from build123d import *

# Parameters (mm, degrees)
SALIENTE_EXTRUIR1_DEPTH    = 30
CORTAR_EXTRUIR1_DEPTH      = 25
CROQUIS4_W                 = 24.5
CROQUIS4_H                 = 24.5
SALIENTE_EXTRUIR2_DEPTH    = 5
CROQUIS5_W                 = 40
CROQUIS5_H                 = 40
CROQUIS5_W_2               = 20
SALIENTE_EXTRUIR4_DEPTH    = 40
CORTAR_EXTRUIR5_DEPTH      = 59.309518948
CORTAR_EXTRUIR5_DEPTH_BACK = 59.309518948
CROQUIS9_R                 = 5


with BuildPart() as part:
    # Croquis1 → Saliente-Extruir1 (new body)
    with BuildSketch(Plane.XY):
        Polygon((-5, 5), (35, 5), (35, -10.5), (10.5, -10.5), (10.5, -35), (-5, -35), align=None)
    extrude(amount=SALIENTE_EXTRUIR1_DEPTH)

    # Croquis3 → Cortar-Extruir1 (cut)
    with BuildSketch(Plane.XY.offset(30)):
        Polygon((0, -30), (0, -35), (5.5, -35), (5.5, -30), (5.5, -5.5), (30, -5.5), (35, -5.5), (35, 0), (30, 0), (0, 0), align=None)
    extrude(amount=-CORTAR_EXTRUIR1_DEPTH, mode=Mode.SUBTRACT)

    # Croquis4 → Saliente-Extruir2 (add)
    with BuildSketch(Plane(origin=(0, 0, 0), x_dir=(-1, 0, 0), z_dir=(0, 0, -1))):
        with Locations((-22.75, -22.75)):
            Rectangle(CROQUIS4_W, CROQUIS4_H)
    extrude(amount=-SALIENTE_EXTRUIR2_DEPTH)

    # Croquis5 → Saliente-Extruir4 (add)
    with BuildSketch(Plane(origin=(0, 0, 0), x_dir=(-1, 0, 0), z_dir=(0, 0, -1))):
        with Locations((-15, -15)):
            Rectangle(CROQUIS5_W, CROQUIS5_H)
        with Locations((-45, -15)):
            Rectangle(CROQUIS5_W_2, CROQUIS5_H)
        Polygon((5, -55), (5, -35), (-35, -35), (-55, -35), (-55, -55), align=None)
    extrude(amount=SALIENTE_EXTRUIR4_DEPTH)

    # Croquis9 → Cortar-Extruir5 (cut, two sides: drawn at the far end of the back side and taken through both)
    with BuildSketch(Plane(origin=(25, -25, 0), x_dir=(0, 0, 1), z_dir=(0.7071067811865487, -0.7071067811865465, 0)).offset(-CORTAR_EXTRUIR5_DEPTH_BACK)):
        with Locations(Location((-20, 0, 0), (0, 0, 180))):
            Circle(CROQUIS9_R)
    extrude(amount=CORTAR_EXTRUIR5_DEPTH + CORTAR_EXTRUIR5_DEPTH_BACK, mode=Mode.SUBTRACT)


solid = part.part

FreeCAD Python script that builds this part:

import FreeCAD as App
import Part
import Sketcher
from FreeCAD import Vector


def add_polygon(sketch, points):
    """Adds a closed chain of lines whose ends are joined by coincident constraints."""
    first, n = sketch.GeometryCount, len(points)
    for a, b in zip(points, points[1:] + points[:1]):
        sketch.addGeometry(Part.LineSegment(App.Vector(*a, 0), App.Vector(*b, 0)), False)
    for i in range(n):
        sketch.addConstraint(Sketcher.Constraint("Coincident", first + i, 2, first + (i + 1) % n, 1))

doc = App.newDocument("Part")
params = doc.addObject("Spreadsheet::Sheet", "Params")
for row, (alias, value) in enumerate([
    ("sketch1_width", "40 mm"),
    ("sketch1_width2", "15.5 mm"),
    ("pad1_length", "30 mm"),
    ("sketch2_width", "35 mm"),
    ("sketch2_width2", "5.5 mm"),
    ("pocket1_length", "25 mm"),
    ("sketch3_width", "24.5 mm"),
    ("pad2_length", "5 mm"),
    ("sketch4_width", "60 mm"),
    ("pad3_length", "40 mm"),
    ("sketch5_diameter", "10 mm"),
], start=1):
    params.set(f"A{row}", alias)
    params.set(f"B{row}", "=" + value)
    params.setAlias(f"B{row}", alias)

body = doc.addObject("PartDesign::Body", "Body")

sketch1 = body.newObject("Sketcher::SketchObject", "Sketch")
sketch1.AttachmentSupport = (doc.getObject("XY_Plane"), [""])
sketch1.MapMode = "FlatFace"
add_polygon(sketch1, [(35, 5), (-5, 5), (-5, -35), (10.5, -35), (10.5, -10.5), (35, -10.5)])
sketch1.addConstraint(Sketcher.Constraint("Horizontal", 0))
sketch1.addConstraint(Sketcher.Constraint("Vertical", 1))
sketch1.addConstraint(Sketcher.Constraint("Horizontal", 2))
sketch1.addConstraint(Sketcher.Constraint("Vertical", 3))
sketch1.addConstraint(Sketcher.Constraint("Horizontal", 4))
sketch1.addConstraint(Sketcher.Constraint("Vertical", 5))
sketch1.addConstraint(Sketcher.Constraint("Equal", 0, 1))
sketch1.addConstraint(Sketcher.Constraint("Equal", 4, 3))
sketch1.addConstraint(Sketcher.Constraint("DistanceX", 0, 2, 0, 1, 40.0))
sketch1.addConstraint(Sketcher.Constraint("DistanceX", 2, 1, 2, 2, 15.5))
sketch1.addConstraint(Sketcher.Constraint("DistanceX", 0, 2, -1, 1, 5.0))
sketch1.addConstraint(Sketcher.Constraint("DistanceY", -1, 1, 0, 2, 5.0))
sketch1.setExpression("Constraints[14]", "Params.sketch1_width")
sketch1.setExpression("Constraints[15]", "Params.sketch1_width2")
pad1 = body.newObject("PartDesign::Pad", "Pad")
pad1.Profile = sketch1
pad1.setExpression("Length", "Params.pad1_length")

sketch2 = body.newObject("Sketcher::SketchObject", "Sketch001")
sketch2.AttachmentSupport = (doc.getObject("XY_Plane"), [""])
sketch2.MapMode = "FlatFace"
sketch2.AttachmentOffset = App.Placement(Vector(0, 0, 30), App.Rotation())
add_polygon(sketch2, [(0, -35), (5.5, -35), (5.5, -5.5), (35, -5.5), (35, 0), (0, 0)])
sketch2.addConstraint(Sketcher.Constraint("Horizontal", 0))
sketch2.addConstraint(Sketcher.Constraint("Vertical", 1))
sketch2.addConstraint(Sketcher.Constraint("Horizontal", 2))
sketch2.addConstraint(Sketcher.Constraint("Vertical", 3))
sketch2.addConstraint(Sketcher.Constraint("Horizontal", 4))
sketch2.addConstraint(Sketcher.Constraint("Vertical", 5))
sketch2.addConstraint(Sketcher.Constraint("Coincident", 4, 2, -1, 1))
sketch2.addConstraint(Sketcher.Constraint("Equal", 2, 1))
sketch2.addConstraint(Sketcher.Constraint("Equal", 0, 3))
sketch2.addConstraint(Sketcher.Constraint("DistanceX", 4, 2, 4, 1, 35.0))
sketch2.addConstraint(Sketcher.Constraint("DistanceX", 0, 1, 0, 2, 5.5))
sketch2.setExpression("Constraints[15]", "Params.sketch2_width")
sketch2.setExpression("Constraints[16]", "Params.sketch2_width2")
pocket1 = body.newObject("PartDesign::Pocket", "Pocket")
pocket1.Profile = sketch2
pocket1.setExpression("Length", "Params.pocket1_length")

sketch3 = body.newObject("Sketcher::SketchObject", "Sketch002")
sketch3.AttachmentSupport = (doc.getObject("XY_Plane"), [""])
sketch3.MapMode = "FlatFace"
add_polygon(sketch3, [(35, -10.5), (35, -35), (10.5, -35), (10.5, -10.5)])
sketch3.addConstraint(Sketcher.Constraint("Vertical", 0))
sketch3.addConstraint(Sketcher.Constraint("Horizontal", 1))
sketch3.addConstraint(Sketcher.Constraint("Vertical", 2))
sketch3.addConstraint(Sketcher.Constraint("Horizontal", 3))
sketch3.addConstraint(Sketcher.Constraint("Equal", 3, 0))
sketch3.addConstraint(Sketcher.Constraint("DistanceX", 1, 2, 1, 1, 24.5))
sketch3.addConstraint(Sketcher.Constraint("DistanceX", -1, 1, 0, 2, 35.0))
sketch3.addConstraint(Sketcher.Constraint("DistanceY", 0, 2, -1, 1, 35.0))
sketch3.setExpression("Constraints[9]", "Params.sketch3_width")
pad2 = body.newObject("PartDesign::Pad", "Pad001")
pad2.Profile = sketch3
pad2.setExpression("Length", "Params.pad2_length")

sketch4 = body.newObject("Sketcher::SketchObject", "Sketch003")
sketch4.AttachmentSupport = (doc.getObject("XY_Plane"), [""])
sketch4.MapMode = "FlatFace"
add_polygon(sketch4, [(-5, 5), (55, 5), (55, -55), (-5, -55)])
sketch4.addConstraint(Sketcher.Constraint("Horizontal", 0))
sketch4.addConstraint(Sketcher.Constraint("Vertical", 1))
sketch4.addConstraint(Sketcher.Constraint("Horizontal", 2))
sketch4.addConstraint(Sketcher.Constraint("Vertical", 3))
sketch4.addConstraint(Sketcher.Constraint("Equal", 2, 1))
sketch4.addConstraint(Sketcher.Constraint("DistanceX", 0, 1, 0, 2, 60.0))
sketch4.addConstraint(Sketcher.Constraint("DistanceX", -1, 1, 0, 2, 55.0))
sketch4.addConstraint(Sketcher.Constraint("DistanceY", -1, 1, 0, 2, 5.0))
sketch4.setExpression("Constraints[9]", "Params.sketch4_width")
pad3 = body.newObject("PartDesign::Pad", "Pad002")
pad3.Profile = sketch4
pad3.setExpression("Length", "Params.pad3_length")
pad3.Reversed = True

sketch5 = body.newObject("Sketcher::SketchObject", "Sketch004")
sketch5.Placement = App.Placement(Vector(25, -25, 0), App.Rotation(Vector(0, 0, 1), Vector(-0.707106781, -0.707106781, 0), Vector(0.707106781, -0.707106781, 0), "ZXY"))
sketch5.addGeometry(Part.Circle(Vector(-20, 0, 0), Vector(0, 0, 1), 5), False)
sketch5.addConstraint(Sketcher.Constraint("PointOnObject", 0, 3, -1))
sketch5.addConstraint(Sketcher.Constraint("Diameter", 0, 10.0))
sketch5.addConstraint(Sketcher.Constraint("DistanceX", 0, 3, -1, 1, 20.0))
sketch5.setExpression("Constraints[1]", "Params.sketch5_diameter")
pocket2 = body.newObject("PartDesign::Pocket", "Pocket001")
pocket2.Profile = sketch5
pocket2.Type = "ThroughAll"
pocket2.Midplane = True

doc.recompute()
